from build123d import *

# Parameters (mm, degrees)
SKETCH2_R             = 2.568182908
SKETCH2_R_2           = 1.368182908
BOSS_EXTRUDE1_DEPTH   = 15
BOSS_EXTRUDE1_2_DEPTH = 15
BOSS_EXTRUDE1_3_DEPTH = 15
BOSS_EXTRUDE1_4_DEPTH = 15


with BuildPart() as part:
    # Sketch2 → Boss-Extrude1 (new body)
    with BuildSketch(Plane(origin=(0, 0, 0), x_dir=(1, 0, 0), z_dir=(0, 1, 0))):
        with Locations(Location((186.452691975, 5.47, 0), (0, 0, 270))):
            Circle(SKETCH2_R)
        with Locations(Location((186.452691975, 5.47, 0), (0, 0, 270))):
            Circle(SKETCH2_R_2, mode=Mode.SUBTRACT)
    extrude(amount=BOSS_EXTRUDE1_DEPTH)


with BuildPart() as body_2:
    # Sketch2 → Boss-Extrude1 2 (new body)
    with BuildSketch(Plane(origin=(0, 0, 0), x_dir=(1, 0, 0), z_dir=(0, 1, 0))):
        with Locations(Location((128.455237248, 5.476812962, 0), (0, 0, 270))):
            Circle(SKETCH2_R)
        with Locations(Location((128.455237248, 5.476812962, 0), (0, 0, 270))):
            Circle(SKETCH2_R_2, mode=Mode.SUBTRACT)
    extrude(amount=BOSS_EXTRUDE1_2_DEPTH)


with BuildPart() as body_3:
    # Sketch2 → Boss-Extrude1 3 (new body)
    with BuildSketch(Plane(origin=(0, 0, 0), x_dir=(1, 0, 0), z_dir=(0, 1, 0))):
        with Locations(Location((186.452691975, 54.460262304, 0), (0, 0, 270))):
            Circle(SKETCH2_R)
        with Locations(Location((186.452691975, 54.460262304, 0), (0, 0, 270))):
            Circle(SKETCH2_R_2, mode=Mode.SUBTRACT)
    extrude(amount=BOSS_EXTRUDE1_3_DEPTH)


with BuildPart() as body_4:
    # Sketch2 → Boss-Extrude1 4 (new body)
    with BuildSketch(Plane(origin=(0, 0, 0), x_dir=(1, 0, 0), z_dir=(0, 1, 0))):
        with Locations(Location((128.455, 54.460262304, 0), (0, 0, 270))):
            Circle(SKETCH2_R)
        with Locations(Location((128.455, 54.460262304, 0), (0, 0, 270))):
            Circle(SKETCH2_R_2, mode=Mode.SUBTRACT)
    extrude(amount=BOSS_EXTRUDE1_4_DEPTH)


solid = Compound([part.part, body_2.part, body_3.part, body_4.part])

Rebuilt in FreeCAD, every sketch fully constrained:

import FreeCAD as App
import Part
import Sketcher
Q = App.Units.Quantity

doc = App.newDocument("Part")
params = doc.addObject("Spreadsheet::Sheet", "Params")
for row, (alias, value) in enumerate([
    ("pad1_length", "15 mm"),
    ("pad2_length", "15 mm"),
    ("pad3_length", "15 mm"),
    ("pad4_length", "15 mm"),
], start=1):
    params.set(f"A{row}", alias)
    params.set(f"B{row}", "=" + value)
    params.setAlias(f"B{row}", alias)

body = doc.addObject("PartDesign::Body", "Body")

# Sketch on XZ plane
sketch1 = doc.addObject("Sketcher::SketchObject", "Sketch")
body.addObject(sketch1)
sketch1.AttachmentSupport = (doc.XZ_Plane, [""])
sketch1.MapMode = "FlatFace"
sketch1.addGeometry(Part.Circle(App.Vector(186.5, -5.5, 0), App.Vector(0, 0, 1), 2.6), False)
sketch1.addGeometry(Part.Circle(App.Vector(186.5, -5.5, 0), App.Vector(0, 0, 1), 1.4), False)
sketch1.addConstraint(Sketcher.Constraint("Coincident", 1, 3, 0, 3))
sketch1.addConstraint(Sketcher.Constraint("DistanceY", 0, 3, -1, 1, Q("5.47 mm")))
sketch1.addConstraint(Sketcher.Constraint("Diameter", 0, Q("5.136366 mm")))
sketch1.addConstraint(Sketcher.Constraint("Diameter", 1, Q("2.736366 mm")))
sketch1.addConstraint(Sketcher.Constraint("DistanceX", -1, 1, 0, 3, Q("186.452692 mm")))
pad1 = doc.addObject("PartDesign::Pad", "Pad")
body.addObject(pad1)
pad1.Profile = sketch1
pad1.setExpression("Length", "Params.pad1_length")
pad1.Reversed = True
body2 = doc.addObject("PartDesign::Body", "Body001")

# Sketch on XZ plane
sketch2 = doc.addObject("Sketcher::SketchObject", "Sketch001")
body2.addObject(sketch2)
sketch2.AttachmentSupport = (doc.getObject("XZ_Plane001"), [""])
sketch2.MapMode = "FlatFace"
sketch2.addGeometry(Part.Circle(App.Vector(128.5, -5.5, 0), App.Vector(0, 0, 1), 2.6), False)
sketch2.addGeometry(Part.Circle(App.Vector(128.5, -5.5, 0), App.Vector(0, 0, 1), 1.4), False)
sketch2.addConstraint(Sketcher.Constraint("Coincident", 1, 3, 0, 3))
sketch2.addConstraint(Sketcher.Constraint("Diameter", 0, Q("5.136366 mm")))
sketch2.addConstraint(Sketcher.Constraint("Diameter", 1, Q("2.736366 mm")))
sketch2.addConstraint(Sketcher.Constraint("DistanceX", -1, 1, 0, 3, Q("128.455237 mm")))
sketch2.addConstraint(Sketcher.Constraint("DistanceY", 0, 3, -1, 1, Q("5.476813 mm")))
pad2 = doc.addObject("PartDesign::Pad", "Pad001")
body2.addObject(pad2)
pad2.Profile = sketch2
pad2.setExpression("Length", "Params.pad2_length")
pad2.Reversed = True
body3 = doc.addObject("PartDesign::Body", "Body002")

# Sketch on XZ plane
sketch3 = doc.addObject("Sketcher::SketchObject", "Sketch002")
body3.addObject(sketch3)
sketch3.AttachmentSupport = (doc.getObject("XZ_Plane002"), [""])
sketch3.MapMode = "FlatFace"
sketch3.addGeometry(Part.Circle(App.Vector(186.5, -54.5, 0), App.Vector(0, 0, 1), 2.6), False)
sketch3.addGeometry(Part.Circle(App.Vector(186.5, -54.5, 0), App.Vector(0, 0, 1), 1.4), False)
sketch3.addConstraint(Sketcher.Constraint("Coincident", 1, 3, 0, 3))
sketch3.addConstraint(Sketcher.Constraint("Diameter", 0, Q("5.136366 mm")))
sketch3.addConstraint(Sketcher.Constraint("Diameter", 1, Q("2.736366 mm")))
sketch3.addConstraint(Sketcher.Constraint("DistanceX", -1, 1, 0, 3, Q("186.452692 mm")))
sketch3.addConstraint(Sketcher.Constraint("DistanceY", 0, 3, -1, 1, Q("54.460262 mm")))
pad3 = doc.addObject("PartDesign::Pad", "Pad002")
body3.addObject(pad3)
pad3.Profile = sketch3
pad3.setExpression("Length", "Params.pad3_length")
pad3.Reversed = True
body4 = doc.addObject("PartDesign::Body", "Body003")

# Sketch on XZ plane
sketch4 = doc.addObject("Sketcher::SketchObject", "Sketch003")
body4.addObject(sketch4)
sketch4.AttachmentSupport = (doc.getObject("XZ_Plane003"), [""])
sketch4.MapMode = "FlatFace"
sketch4.addGeometry(Part.Circle(App.Vector(128.5, -54.5, 0), App.Vector(0, 0, 1), 2.6), False)
sketch4.addGeometry(Part.Circle(App.Vector(128.5, -54.5, 0), App.Vector(0, 0, 1), 1.4), False)
sketch4.addConstraint(Sketcher.Constraint("Coincident", 1, 3, 0, 3))
sketch4.addConstraint(Sketcher.Constraint("Diameter", 0, Q("5.136366 mm")))
sketch4.addConstraint(Sketcher.Constraint("Diameter", 1, Q("2.736366 mm")))
sketch4.addConstraint(Sketcher.Constraint("DistanceX", -1, 1, 0, 3, Q("128.455 mm")))
sketch4.addConstraint(Sketcher.Constraint("DistanceY", 0, 3, -1, 1, Q("54.460262 mm")))
pad4 = doc.addObject("PartDesign::Pad", "Pad003")
body4.addObject(pad4)
pad4.Profile = sketch4
pad4.setExpression("Length", "Params.pad4_length")
pad4.Reversed = True

doc.recompute()
